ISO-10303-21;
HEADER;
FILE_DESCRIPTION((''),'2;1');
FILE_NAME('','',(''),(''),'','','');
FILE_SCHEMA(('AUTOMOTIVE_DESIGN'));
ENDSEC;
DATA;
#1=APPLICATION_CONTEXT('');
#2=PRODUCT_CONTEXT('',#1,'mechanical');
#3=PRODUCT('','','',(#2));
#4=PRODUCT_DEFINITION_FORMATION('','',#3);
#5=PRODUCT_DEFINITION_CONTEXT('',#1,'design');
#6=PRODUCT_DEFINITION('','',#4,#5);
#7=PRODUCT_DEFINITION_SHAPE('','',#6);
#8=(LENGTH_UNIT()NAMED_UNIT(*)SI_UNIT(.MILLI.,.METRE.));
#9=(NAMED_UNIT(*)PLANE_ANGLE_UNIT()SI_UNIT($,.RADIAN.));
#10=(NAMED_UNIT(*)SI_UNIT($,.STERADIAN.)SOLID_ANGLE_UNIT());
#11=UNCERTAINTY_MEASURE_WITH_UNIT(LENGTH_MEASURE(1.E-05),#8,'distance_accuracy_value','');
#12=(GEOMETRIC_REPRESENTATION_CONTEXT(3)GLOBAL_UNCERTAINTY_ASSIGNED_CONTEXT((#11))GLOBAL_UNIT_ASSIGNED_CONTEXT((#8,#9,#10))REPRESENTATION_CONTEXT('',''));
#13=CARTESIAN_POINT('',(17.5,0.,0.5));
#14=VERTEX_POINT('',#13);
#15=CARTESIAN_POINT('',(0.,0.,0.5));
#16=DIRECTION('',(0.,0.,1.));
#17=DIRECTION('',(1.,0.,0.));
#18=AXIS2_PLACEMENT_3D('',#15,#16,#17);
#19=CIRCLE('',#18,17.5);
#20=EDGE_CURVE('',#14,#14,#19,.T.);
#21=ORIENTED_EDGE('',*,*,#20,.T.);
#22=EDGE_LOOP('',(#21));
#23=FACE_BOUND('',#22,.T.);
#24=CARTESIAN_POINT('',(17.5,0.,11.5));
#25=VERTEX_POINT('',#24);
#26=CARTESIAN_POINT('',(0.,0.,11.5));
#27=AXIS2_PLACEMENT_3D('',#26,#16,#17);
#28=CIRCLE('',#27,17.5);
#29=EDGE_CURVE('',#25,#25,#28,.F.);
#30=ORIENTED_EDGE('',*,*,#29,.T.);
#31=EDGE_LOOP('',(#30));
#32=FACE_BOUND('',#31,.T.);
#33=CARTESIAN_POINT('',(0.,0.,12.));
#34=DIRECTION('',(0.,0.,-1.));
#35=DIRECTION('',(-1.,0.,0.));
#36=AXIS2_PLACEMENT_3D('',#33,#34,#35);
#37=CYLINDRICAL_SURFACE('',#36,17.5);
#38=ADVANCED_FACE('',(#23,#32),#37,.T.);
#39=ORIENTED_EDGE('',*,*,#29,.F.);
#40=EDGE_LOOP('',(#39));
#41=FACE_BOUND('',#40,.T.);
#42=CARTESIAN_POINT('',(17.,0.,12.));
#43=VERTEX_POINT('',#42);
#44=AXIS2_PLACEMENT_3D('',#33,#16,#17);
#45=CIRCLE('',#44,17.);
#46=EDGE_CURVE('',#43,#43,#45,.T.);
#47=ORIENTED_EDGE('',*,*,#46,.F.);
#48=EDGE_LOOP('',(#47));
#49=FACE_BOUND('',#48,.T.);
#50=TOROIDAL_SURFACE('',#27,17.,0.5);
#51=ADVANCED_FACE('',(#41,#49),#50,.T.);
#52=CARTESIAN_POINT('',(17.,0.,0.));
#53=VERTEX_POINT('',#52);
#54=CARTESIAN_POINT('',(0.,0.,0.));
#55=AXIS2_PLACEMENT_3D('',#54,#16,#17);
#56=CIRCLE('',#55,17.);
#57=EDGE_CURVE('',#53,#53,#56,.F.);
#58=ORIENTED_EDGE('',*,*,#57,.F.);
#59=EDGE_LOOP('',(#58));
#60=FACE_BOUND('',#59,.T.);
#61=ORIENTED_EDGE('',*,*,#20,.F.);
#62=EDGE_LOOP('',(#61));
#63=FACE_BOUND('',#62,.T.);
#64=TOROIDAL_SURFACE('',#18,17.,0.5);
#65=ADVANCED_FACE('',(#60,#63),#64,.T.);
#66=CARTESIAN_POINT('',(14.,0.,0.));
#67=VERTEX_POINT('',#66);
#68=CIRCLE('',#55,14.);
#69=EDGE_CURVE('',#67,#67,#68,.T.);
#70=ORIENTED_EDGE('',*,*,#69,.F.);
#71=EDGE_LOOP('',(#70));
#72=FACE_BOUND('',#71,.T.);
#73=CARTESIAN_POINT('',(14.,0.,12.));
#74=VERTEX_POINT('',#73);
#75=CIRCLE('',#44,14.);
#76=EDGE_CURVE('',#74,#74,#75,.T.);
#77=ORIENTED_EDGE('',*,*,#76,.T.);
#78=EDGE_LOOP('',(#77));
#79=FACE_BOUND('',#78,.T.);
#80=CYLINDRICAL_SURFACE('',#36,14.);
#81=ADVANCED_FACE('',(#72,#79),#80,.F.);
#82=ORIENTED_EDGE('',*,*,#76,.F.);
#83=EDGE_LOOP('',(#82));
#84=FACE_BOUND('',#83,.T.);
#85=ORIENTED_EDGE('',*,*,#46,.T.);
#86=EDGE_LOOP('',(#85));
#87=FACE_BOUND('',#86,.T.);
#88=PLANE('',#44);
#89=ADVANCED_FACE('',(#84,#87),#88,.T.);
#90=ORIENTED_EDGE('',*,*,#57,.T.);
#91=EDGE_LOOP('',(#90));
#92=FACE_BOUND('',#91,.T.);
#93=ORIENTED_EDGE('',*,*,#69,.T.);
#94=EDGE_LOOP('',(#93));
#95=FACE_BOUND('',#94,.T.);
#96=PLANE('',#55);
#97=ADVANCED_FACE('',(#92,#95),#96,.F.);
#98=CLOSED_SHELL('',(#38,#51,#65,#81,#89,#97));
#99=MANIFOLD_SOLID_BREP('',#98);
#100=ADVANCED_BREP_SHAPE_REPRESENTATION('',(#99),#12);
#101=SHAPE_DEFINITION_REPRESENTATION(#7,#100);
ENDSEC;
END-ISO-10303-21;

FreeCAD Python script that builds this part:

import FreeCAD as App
import Part
import Sketcher


def edges_at(feature, points):
    """Names of the edges that pass closest to the given points."""
    edges = feature.Shape.Edges
    near = lambda p: min(range(len(edges)), key=lambda i: edges[i].distToShape(Part.Vertex(*p))[0])
    return sorted({f"Edge{near(p) + 1}" for p in points})

doc = App.newDocument("Part")
body = doc.addObject("PartDesign::Body", "Body")

# Sketch on XY plane
sketch1 = body.newObject("Sketcher::SketchObject", "Sketch")
sketch1.AttachmentSupport = (doc.getObject("XY_Plane"), [""])
sketch1.MapMode = "FlatFace"
sketch1.addGeometry([
    Part.Circle(App.Vector(0, 0, 0), App.Vector(0, 0, 1), 18),
    Part.Circle(App.Vector(0, 0, 0), App.Vector(0, 0, 1), 14),
], False)
sketch1.addConstraint([
    Sketcher.Constraint("Coincident", 0, 3, -1, 1),
    Sketcher.Constraint("Coincident", 1, 3, -1, 1),
    Sketcher.Constraint("Diameter", 0, 35.0),
    Sketcher.Constraint("Diameter", 1, 28.0),
])
pad1 = body.newObject("PartDesign::Pad", "Pad")
pad1.Profile = sketch1
pad1.Length = 12
doc.recompute()

fillet = body.newObject("PartDesign::Fillet", "Fillet")
fillet.Base = (pad1, edges_at(pad1, [(-17.5, 0, 0), (-17.5, 0, 12)]))
fillet.Radius = 0.5

doc.recompute()
